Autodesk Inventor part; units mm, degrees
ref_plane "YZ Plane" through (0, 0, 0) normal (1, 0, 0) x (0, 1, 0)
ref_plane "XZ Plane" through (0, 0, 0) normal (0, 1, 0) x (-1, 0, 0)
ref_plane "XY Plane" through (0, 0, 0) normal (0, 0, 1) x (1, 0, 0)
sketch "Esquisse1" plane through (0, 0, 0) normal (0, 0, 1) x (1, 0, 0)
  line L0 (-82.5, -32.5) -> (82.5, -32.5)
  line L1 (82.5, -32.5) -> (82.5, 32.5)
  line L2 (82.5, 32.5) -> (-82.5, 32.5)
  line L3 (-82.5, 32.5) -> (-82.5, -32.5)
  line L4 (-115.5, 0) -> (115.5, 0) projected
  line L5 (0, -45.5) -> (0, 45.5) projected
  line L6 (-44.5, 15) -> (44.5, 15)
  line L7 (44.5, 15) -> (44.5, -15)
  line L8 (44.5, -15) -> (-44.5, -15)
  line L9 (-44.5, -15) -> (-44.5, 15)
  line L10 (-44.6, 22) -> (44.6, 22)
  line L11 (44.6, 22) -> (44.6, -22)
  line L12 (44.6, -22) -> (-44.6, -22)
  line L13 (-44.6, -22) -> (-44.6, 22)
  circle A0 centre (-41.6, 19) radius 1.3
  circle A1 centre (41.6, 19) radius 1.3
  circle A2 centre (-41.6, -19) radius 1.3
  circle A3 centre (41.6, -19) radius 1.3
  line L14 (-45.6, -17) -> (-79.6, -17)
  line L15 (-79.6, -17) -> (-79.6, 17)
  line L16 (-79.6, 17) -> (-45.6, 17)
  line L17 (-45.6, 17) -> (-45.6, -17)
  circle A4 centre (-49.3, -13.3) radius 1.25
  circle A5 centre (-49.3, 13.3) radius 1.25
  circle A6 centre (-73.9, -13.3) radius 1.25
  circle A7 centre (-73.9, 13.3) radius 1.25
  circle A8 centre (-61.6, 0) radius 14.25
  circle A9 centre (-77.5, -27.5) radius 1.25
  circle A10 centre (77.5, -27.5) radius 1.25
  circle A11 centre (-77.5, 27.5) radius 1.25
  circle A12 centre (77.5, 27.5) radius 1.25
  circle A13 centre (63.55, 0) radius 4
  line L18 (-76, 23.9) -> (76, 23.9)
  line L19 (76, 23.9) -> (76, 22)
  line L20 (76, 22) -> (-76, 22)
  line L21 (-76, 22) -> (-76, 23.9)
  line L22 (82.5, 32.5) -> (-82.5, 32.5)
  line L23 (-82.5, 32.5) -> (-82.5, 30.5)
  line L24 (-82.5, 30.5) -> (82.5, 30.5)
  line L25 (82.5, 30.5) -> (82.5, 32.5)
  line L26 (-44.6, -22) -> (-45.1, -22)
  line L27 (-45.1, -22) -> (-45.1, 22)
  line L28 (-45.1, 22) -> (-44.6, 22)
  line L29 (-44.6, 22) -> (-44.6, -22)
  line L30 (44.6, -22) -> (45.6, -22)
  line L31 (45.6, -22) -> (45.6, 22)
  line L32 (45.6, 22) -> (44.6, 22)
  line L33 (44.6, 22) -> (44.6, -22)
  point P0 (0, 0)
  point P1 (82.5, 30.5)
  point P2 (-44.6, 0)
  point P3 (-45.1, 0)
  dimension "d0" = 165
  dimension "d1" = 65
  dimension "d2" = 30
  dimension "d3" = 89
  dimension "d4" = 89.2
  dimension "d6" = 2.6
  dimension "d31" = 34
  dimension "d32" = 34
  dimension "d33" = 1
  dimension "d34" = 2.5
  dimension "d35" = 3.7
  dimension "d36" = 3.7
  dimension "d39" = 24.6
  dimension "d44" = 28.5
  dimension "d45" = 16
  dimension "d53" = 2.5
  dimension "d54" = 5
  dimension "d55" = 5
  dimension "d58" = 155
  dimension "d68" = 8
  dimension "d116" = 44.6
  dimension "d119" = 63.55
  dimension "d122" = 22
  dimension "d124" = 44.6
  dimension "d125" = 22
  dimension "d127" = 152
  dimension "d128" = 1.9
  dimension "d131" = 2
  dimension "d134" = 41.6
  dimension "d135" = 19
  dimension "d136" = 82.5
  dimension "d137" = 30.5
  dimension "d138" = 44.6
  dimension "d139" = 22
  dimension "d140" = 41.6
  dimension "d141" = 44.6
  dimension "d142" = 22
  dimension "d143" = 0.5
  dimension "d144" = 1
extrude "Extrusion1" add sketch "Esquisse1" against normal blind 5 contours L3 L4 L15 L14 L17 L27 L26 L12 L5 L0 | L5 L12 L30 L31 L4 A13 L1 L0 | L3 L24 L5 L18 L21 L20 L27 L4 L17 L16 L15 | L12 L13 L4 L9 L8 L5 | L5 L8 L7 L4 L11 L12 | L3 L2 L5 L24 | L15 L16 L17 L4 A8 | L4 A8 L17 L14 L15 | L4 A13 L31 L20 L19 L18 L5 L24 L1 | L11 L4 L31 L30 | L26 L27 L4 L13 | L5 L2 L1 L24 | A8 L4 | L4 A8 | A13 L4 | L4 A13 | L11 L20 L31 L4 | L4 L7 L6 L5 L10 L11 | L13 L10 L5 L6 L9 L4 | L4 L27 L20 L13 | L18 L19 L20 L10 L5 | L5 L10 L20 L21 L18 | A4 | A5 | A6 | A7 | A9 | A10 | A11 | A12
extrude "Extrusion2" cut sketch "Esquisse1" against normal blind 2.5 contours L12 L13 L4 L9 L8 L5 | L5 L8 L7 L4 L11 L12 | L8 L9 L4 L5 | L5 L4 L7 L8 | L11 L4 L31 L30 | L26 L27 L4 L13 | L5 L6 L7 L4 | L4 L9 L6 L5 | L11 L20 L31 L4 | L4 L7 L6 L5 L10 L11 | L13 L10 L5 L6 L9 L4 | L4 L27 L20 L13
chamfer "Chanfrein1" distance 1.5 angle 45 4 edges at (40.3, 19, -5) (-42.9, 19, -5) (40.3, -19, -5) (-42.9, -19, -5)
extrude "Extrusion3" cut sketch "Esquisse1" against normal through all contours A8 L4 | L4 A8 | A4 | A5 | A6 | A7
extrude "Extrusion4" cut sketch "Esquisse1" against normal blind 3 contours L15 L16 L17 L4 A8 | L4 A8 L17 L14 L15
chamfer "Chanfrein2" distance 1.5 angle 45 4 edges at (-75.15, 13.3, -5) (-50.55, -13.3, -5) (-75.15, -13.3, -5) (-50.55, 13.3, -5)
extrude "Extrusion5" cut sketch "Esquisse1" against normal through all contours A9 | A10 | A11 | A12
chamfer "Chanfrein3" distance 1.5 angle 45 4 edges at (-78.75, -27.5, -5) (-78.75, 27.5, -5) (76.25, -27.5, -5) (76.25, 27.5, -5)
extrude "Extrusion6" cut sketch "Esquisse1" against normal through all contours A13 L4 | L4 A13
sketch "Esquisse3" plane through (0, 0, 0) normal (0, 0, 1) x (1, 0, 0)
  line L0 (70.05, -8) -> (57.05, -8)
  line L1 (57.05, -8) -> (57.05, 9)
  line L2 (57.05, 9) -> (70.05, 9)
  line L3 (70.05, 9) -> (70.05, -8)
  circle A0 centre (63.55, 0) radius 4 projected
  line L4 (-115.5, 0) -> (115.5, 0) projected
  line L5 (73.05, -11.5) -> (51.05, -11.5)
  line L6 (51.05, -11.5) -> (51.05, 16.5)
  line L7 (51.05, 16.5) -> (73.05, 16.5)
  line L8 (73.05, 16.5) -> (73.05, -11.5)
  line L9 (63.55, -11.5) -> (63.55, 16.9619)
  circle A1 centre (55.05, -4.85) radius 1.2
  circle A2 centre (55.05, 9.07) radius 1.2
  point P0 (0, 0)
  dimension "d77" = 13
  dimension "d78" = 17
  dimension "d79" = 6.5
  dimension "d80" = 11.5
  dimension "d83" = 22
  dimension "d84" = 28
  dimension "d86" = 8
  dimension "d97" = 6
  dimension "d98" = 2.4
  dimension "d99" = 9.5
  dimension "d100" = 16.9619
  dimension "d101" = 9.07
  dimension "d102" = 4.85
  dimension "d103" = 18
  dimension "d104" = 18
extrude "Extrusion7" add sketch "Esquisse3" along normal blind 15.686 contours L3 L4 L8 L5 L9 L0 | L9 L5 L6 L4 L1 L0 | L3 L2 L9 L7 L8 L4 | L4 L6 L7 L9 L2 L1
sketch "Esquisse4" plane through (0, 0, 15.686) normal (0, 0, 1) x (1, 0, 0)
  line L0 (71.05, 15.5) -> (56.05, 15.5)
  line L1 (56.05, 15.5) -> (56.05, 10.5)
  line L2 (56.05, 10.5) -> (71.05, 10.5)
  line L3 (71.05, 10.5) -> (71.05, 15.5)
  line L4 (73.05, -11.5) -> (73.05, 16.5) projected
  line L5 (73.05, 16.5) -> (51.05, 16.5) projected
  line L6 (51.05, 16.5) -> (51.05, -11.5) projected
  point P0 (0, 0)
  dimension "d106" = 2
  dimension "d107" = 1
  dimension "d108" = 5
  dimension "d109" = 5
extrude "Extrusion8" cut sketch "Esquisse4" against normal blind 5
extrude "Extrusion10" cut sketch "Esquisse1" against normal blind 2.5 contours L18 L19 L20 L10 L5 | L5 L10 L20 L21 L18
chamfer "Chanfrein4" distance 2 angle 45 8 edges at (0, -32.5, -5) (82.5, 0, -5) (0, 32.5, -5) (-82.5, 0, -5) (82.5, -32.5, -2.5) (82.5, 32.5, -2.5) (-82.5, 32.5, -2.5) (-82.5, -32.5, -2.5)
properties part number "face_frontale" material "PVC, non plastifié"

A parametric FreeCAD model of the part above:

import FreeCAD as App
import Part
import Sketcher

V = App.Vector
Q = App.Units.Quantity


def edges_at(feature, points):
    """Names of the edges that pass closest to the given points."""
    edges = feature.Shape.Edges
    near = lambda p: min(range(len(edges)), key=lambda i: edges[i].distToShape(Part.Vertex(*p))[0])
    return sorted({f"Edge{near(p) + 1}" for p in points})


def add_polygon(sketch, points):
    """Adds a closed chain of lines whose ends are joined by coincident constraints."""
    first, n = sketch.GeometryCount, len(points)
    for a, b in zip(points, points[1:] + points[:1]):
        sketch.addGeometry(Part.LineSegment(App.Vector(*a, 0), App.Vector(*b, 0)), False)
    for i in range(n):
        sketch.addConstraint(Sketcher.Constraint("Coincident", first + i, 2, first + (i + 1) % n, 1))

doc = App.newDocument("Part")
body = doc.addObject("PartDesign::Body", "Body")

# Sketch on XY plane
sketch1 = body.newObject("Sketcher::SketchObject", "Sketch")
sketch1.AttachmentSupport = (doc.getObject("XY_Plane"), [""])
sketch1.MapMode = "FlatFace"
add_polygon(sketch1, [(-82.5, -32.5), (82.5, -32.5), (82.5, 32.5), (-82.5, 32.5)])  # lines 0-3
sketch1.addGeometry(Part.Circle(V(-41.6, -19, 0), V(0, 0, 1), 1.3), False)  # 4
add_polygon(sketch1, [(-44.5, -15), (-44.5, 15), (44.5, 15), (44.5, -15)])  # lines 5-8
sketch1.addGeometry(Part.Circle(V(41.6, -19, 0), V(0, 0, 1), 1.3), False)  # 9
sketch1.addGeometry(Part.Circle(V(-41.6, 19, 0), V(0, 0, 1), 1.3), False)  # 10
sketch1.addGeometry(Part.Circle(V(41.6, 19, 0), V(0, 0, 1), 1.3), False)  # 11
sketch1.addConstraint([
    Sketcher.Constraint("Horizontal", 0),
    Sketcher.Constraint("Vertical", 1),
    Sketcher.Constraint("Horizontal", 2),
    Sketcher.Constraint("Vertical", 3),
    Sketcher.Constraint("Vertical", 5),
    Sketcher.Constraint("Horizontal", 6),
    Sketcher.Constraint("Vertical", 7),
    Sketcher.Constraint("Horizontal", 8),
    Sketcher.Constraint("Equal", 4, 9),
    Sketcher.Constraint("Equal", 9, 10),
    Sketcher.Constraint("Equal", 10, 11),
    Sketcher.Constraint("Symmetric", 9, 3, 10, 3, -1, 1),
    Sketcher.Constraint("Symmetric", 4, 3, 11, 3, -1, 1),
    Sketcher.Constraint("Symmetric", 0, 2, 2, 2, -1, 1),
    Sketcher.Constraint("Symmetric", 5, 2, 7, 2, -1, 1),
    Sketcher.Constraint("Symmetric", 4, 3, 9, 3, -2),
    Sketcher.Constraint("Diameter", 4, Q("2.6 mm")),
    Sketcher.Constraint("DistanceX", 0, 1, 0, 2, Q("165 mm")),
    Sketcher.Constraint("DistanceX", 6, 1, 6, 2, Q("89 mm")),
    Sketcher.Constraint("DistanceY", 1, 1, 1, 2, Q("65 mm")),
    Sketcher.Constraint("DistanceY", 5, 1, 5, 2, Q("30 mm")),
    Sketcher.Constraint("DistanceY", 4, 3, -1, 1, Q("19 mm")),
    Sketcher.Constraint("DistanceX", 4, 3, -1, 1, Q("41.6 mm")),
])
pad1 = body.newObject("PartDesign::Pad", "Pad")
pad1.Profile = sketch1
pad1.Length = 5
pad1.Reversed = True

# Sketch on XY plane
sketch2 = body.newObject("Sketcher::SketchObject", "Sketch001")
sketch2.AttachmentSupport = (doc.getObject("XY_Plane"), [""])
sketch2.MapMode = "FlatFace"
add_polygon(sketch2, [(45.6, -22), (45.6, 22), (-45.1, 22), (-45.1, -22)])  # lines 0-3
sketch2.addGeometry(Part.Circle(V(-41.6, -19, 0), V(0, 0, 1), 1.3), False)  # 4
sketch2.addGeometry(Part.Circle(V(-41.6, 19, 0), V(0, 0, 1), 1.3), False)  # 5
sketch2.addGeometry(Part.Circle(V(41.6, -19, 0), V(0, 0, 1), 1.3), False)  # 6
sketch2.addGeometry(Part.Circle(V(41.6, 19, 0), V(0, 0, 1), 1.3), False)  # 7
sketch2.addConstraint([
    Sketcher.Constraint("Vertical", 0),
    Sketcher.Constraint("Horizontal", 1),
    Sketcher.Constraint("Vertical", 2),
    Sketcher.Constraint("Horizontal", 3),
    Sketcher.Constraint("Equal", 4, 5),
    Sketcher.Constraint("Equal", 5, 6),
    Sketcher.Constraint("Equal", 6, 7),
    Sketcher.Constraint("Symmetric", 5, 3, 6, 3, -1, 1),
    Sketcher.Constraint("Symmetric", 4, 3, 7, 3, -1, 1),
    Sketcher.Constraint("Symmetric", 4, 3, 6, 3, -2),
    Sketcher.Constraint("Diameter", 4, Q("2.6 mm")),
    Sketcher.Constraint("DistanceY", 4, 3, -1, 1, Q("19 mm")),
    Sketcher.Constraint("DistanceY", -1, 1, 0, 2, Q("22 mm")),
    Sketcher.Constraint("DistanceY", 2, 2, -1, 1, Q("22 mm")),
    Sketcher.Constraint("DistanceX", 4, 3, -1, 1, Q("41.6 mm")),
    Sketcher.Constraint("DistanceX", 1, 2, 1, 1, Q("90.7 mm")),
    Sketcher.Constraint("DistanceX", 7, 3, 0, 2, Q("4 mm")),
])
pocket1 = body.newObject("PartDesign::Pocket", "Pocket")
pocket1.Profile = sketch2
pocket1.Length = 2.5
doc.recompute()

chamfer = body.newObject("PartDesign::Chamfer", "Chamfer")
chamfer.Base = (pocket1, edges_at(pocket1, [
    (40.3, 19, -5),
    (-42.9, 19, -5),
    (40.3, -19, -5),
    (-42.9, -19, -5),
]))
chamfer.Size = 1.5

# Sketch on XY plane
sketch3 = body.newObject("Sketcher::SketchObject", "Sketch002")
sketch3.AttachmentSupport = (doc.getObject("XY_Plane"), [""])
sketch3.MapMode = "FlatFace"
sketch3.addGeometry([
    Part.Circle(V(-61.6, 0, 0), V(0, 0, 1), 14.25),  # 0
    Part.Circle(V(-49.3, -13.3, 0), V(0, 0, 1), 1.25),  # 1
    Part.Circle(V(-49.3, 13.3, 0), V(0, 0, 1), 1.25),  # 2
    Part.Circle(V(-73.9, -13.3, 0), V(0, 0, 1), 1.25),  # 3
    Part.Circle(V(-73.9, 13.3, 0), V(0, 0, 1), 1.25),  # 4
], False)
sketch3.addConstraint([
    Sketcher.Constraint("Equal", 1, 2),
    Sketcher.Constraint("Equal", 2, 3),
    Sketcher.Constraint("Equal", 3, 4),
    Sketcher.Constraint("Symmetric", 1, 3, 2, 3, -1),
    Sketcher.Constraint("Symmetric", 3, 3, 4, 3, -1),
    Sketcher.Constraint("PointOnObject", 0, 3, -1),
    Sketcher.Constraint("Horizontal", 1, 3, 3, 3),
    Sketcher.Constraint("Diameter", 0, Q("28.5 mm")),
    Sketcher.Constraint("Diameter", 1, Q("2.5 mm")),
    Sketcher.Constraint("DistanceX", 3, 3, 1, 3, Q("24.6 mm")),
    Sketcher.Constraint("DistanceX", 0, 3, -1, 1, Q("61.6 mm")),
    Sketcher.Constraint("DistanceX", 1, 3, -1, 1, Q("49.3 mm")),
    Sketcher.Constraint("DistanceY", 1, 3, -1, 1, Q("13.3 mm")),
])
pocket2 = body.newObject("PartDesign::Pocket", "Pocket001")
pocket2.Profile = sketch3
pocket2.Type = "ThroughAll"

# Sketch on XY plane
sketch4 = body.newObject("Sketcher::SketchObject", "Sketch003")
sketch4.AttachmentSupport = (doc.getObject("XY_Plane"), [""])
sketch4.MapMode = "FlatFace"
add_polygon(sketch4, [(-79.6, 17), (-79.6, -17), (-45.6, -17), (-45.6, 17)])  # lines 0-3
sketch4.addGeometry(Part.Circle(V(-61.6, 0, 0), V(0, 0, 1), 14.25), False)  # 4
sketch4.addGeometry(Part.Circle(V(-73.9, 13.3, 0), V(0, 0, 1), 1.25), False)  # 5
sketch4.addGeometry(Part.Circle(V(-49.3, 13.3, 0), V(0, 0, 1), 1.25), False)  # 6
sketch4.addGeometry(Part.Circle(V(-73.9, -13.3, 0), V(0, 0, 1), 1.25), False)  # 7
sketch4.addGeometry(Part.Circle(V(-49.3, -13.3, 0), V(0, 0, 1), 1.25), False)  # 8
sketch4.addConstraint([
    Sketcher.Constraint("Vertical", 0),
    Sketcher.Constraint("Horizontal", 1),
    Sketcher.Constraint("Vertical", 2),
    Sketcher.Constraint("Horizontal", 3),
    Sketcher.Constraint("Equal", 5, 6),
    Sketcher.Constraint("Equal", 6, 7),
    Sketcher.Constraint("Equal", 7, 8),
    Sketcher.Constraint("Symmetric", 5, 3, 7, 3, -1),
    Sketcher.Constraint("Symmetric", 6, 3, 8, 3, -1),
    Sketcher.Constraint("PointOnObject", 4, 3, -1),
    Sketcher.Constraint("Horizontal", 5, 3, 6, 3),
    Sketcher.Constraint("Equal", 3, 0),
    Sketcher.Constraint("Diameter", 4, Q("28.5 mm")),
    Sketcher.Constraint("Diameter", 5, Q("2.5 mm")),
    Sketcher.Constraint("DistanceX", 1, 1, 1, 2, Q("34 mm")),
    Sketcher.Constraint("DistanceX", 4, 3, 1, 2, Q("16 mm")),
    Sketcher.Constraint("DistanceX", 5, 3, 6, 3, Q("24.6 mm")),
    Sketcher.Constraint("DistanceY", 0, 2, 7, 3, Q("3.7 mm")),
    Sketcher.Constraint("DistanceX", 8, 3, 1, 2, Q("3.7 mm")),
    Sketcher.Constraint("DistanceY", 6, 3, 2, 2, Q("3.7 mm")),
    Sketcher.Constraint("DistanceX", 4, 3, -1, 1, Q("61.6 mm")),
])
pocket3 = body.newObject("PartDesign::Pocket", "Pocket002")
pocket3.Profile = sketch4
pocket3.Length = 3
doc.recompute()

chamfer2 = body.newObject("PartDesign::Chamfer", "Chamfer001")
chamfer2.Base = (pocket3, edges_at(pocket3, [
    (-75.15, 13.3, -5),
    (-50.55, -13.3, -5),
    (-75.15, -13.3, -5),
    (-50.55, 13.3, -5),
]))
chamfer2.Size = 1.5

# Sketch on XY plane
sketch5 = body.newObject("Sketcher::SketchObject", "Sketch004")
sketch5.AttachmentSupport = (doc.getObject("XY_Plane"), [""])
sketch5.MapMode = "FlatFace"
sketch5.addGeometry([
    Part.Circle(V(-77.5, -27.5, 0), V(0, 0, 1), 1.25),
    Part.Circle(V(77.5, -27.5, 0), V(0, 0, 1), 1.25),
    Part.Circle(V(-77.5, 27.5, 0), V(0, 0, 1), 1.25),
    Part.Circle(V(77.5, 27.5, 0), V(0, 0, 1), 1.25),
], False)
sketch5.addConstraint([
    Sketcher.Constraint("Equal", 0, 1),
    Sketcher.Constraint("Equal", 1, 2),
    Sketcher.Constraint("Equal", 2, 3),
    Sketcher.Constraint("Symmetric", 1, 3, 2, 3, -1, 1),
    Sketcher.Constraint("Symmetric", 0, 3, 3, 3, -1, 1),
    Sketcher.Constraint("Symmetric", 0, 3, 1, 3, -2),
    Sketcher.Constraint("Diameter", 0, Q("2.5 mm")),
    Sketcher.Constraint("DistanceX", 0, 3, 1, 3, Q("155 mm")),
    Sketcher.Constraint("DistanceY", 0, 3, 2, 3, Q("55 mm")),
])
pocket4 = body.newObject("PartDesign::Pocket", "Pocket003")
pocket4.Profile = sketch5
pocket4.Type = "ThroughAll"
doc.recompute()

chamfer3 = body.newObject("PartDesign::Chamfer", "Chamfer002")
chamfer3.Base = (pocket4, edges_at(pocket4, [
    (-78.75, -27.5, -5),
    (-78.75, 27.5, -5),
    (76.25, -27.5, -5),
    (76.25, 27.5, -5),
]))
chamfer3.Size = 1.5

# Sketch on XY plane
sketch6 = body.newObject("Sketcher::SketchObject", "Sketch005")
sketch6.AttachmentSupport = (doc.getObject("XY_Plane"), [""])
sketch6.MapMode = "FlatFace"
sketch6.addGeometry(Part.Circle(V(63.55, 0, 0), V(0, 0, 1), 4), False)
sketch6.addConstraint([
    Sketcher.Constraint("PointOnObject", 0, 3, -1),
    Sketcher.Constraint("Diameter", 0, Q("8 mm")),
    Sketcher.Constraint("DistanceX", -1, 1, 0, 3, Q("63.55 mm")),
])
pocket5 = body.newObject("PartDesign::Pocket", "Pocket004")
pocket5.Profile = sketch6
pocket5.Type = "ThroughAll"

# Sketch on XY plane
sketch7 = body.newObject("Sketcher::SketchObject", "Sketch006")
sketch7.AttachmentSupport = (doc.getObject("XY_Plane"), [""])
sketch7.MapMode = "FlatFace"
add_polygon(sketch7, [(73.05, -11.5), (73.05, 16.5), (51.05, 16.5), (51.05, -11.5)])  # lines 0-3
add_polygon(sketch7, [(70.05, -8), (57.05, -8), (57.05, 9), (70.05, 9)])  # lines 4-7
sketch7.addGeometry(Part.Circle(V(55.05, -4.85, 0), V(0, 0, 1), 1.2), False)  # 8
sketch7.addGeometry(Part.Circle(V(55.05, 9.07, 0), V(0, 0, 1), 1.2), False)  # 9
sketch7.addConstraint([
    Sketcher.Constraint("Vertical", 0),
    Sketcher.Constraint("Horizontal", 1),
    Sketcher.Constraint("Vertical", 2),
    Sketcher.Constraint("Horizontal", 3),
    Sketcher.Constraint("Horizontal", 4),
    Sketcher.Constraint("Vertical", 5),
    Sketcher.Constraint("Horizontal", 6),
    Sketcher.Constraint("Vertical", 7),
    Sketcher.Constraint("Equal", 8, 9),
    Sketcher.Constraint("Vertical", 8, 3, 9, 3),
    Sketcher.Constraint("Diameter", 8, Q("2.4 mm")),
    Sketcher.Constraint("DistanceX", 1, 2, 1, 1, Q("22 mm")),
    Sketcher.Constraint("DistanceX", 4, 2, 4, 1, Q("13 mm")),
    Sketcher.Constraint("DistanceY", 0, 1, 0, 2, Q("28 mm")),
    Sketcher.Constraint("DistanceY", 5, 1, 5, 2, Q("17 mm")),
    Sketcher.Constraint("DistanceY", 4, 2, -1, 1, Q("8 mm")),
    Sketcher.Constraint("DistanceX", 9, 3, 0, 2, Q("18 mm")),
    Sketcher.Constraint("DistanceX", 2, 2, 4, 2, Q("6 mm")),
    Sketcher.Constraint("DistanceY", 2, 2, -1, 1, Q("11.5 mm")),
    Sketcher.Constraint("DistanceY", 8, 3, -1, 1, Q("4.85 mm")),
    Sketcher.Constraint("DistanceY", -1, 1, 9, 3, Q("9.07 mm")),
    Sketcher.Constraint("DistanceX", -1, 1, 8, 3, Q("55.05 mm")),
])
pad2 = body.newObject("PartDesign::Pad", "Pad001")
pad2.Profile = sketch7
pad2.Length = 15.686

# Sketch on XY plane
sketch8 = body.newObject("Sketcher::SketchObject", "Sketch007")
sketch8.AttachmentSupport = (doc.getObject("XY_Plane"), [""])
sketch8.MapMode = "FlatFace"
sketch8.AttachmentOffset = App.Placement(V(0, 0, 15.686), App.Rotation())
add_polygon(sketch8, [(71.05, 10.5), (71.05, 15.5), (56.05, 15.5), (56.05, 10.5)])  # lines 0-3
sketch8.addConstraint([
    Sketcher.Constraint("Vertical", 0),
    Sketcher.Constraint("Horizontal", 1),
    Sketcher.Constraint("Vertical", 2),
    Sketcher.Constraint("Horizontal", 3),
    Sketcher.Constraint("DistanceY", 0, 1, 0, 2, Q("5 mm")),
    Sketcher.Constraint("DistanceX", 1, 2, 1, 1, Q("15 mm")),
    Sketcher.Constraint("DistanceY", -1, 1, 0, 2, Q("15.5 mm")),
    Sketcher.Constraint("DistanceX", -1, 1, 0, 2, Q("71.05 mm")),
])
pocket6 = body.newObject("PartDesign::Pocket", "Pocket005")
pocket6.Profile = sketch8
pocket6.Length = 5

# Sketch on XY plane
sketch9 = body.newObject("Sketcher::SketchObject", "Sketch008")
sketch9.AttachmentSupport = (doc.getObject("XY_Plane"), [""])
sketch9.MapMode = "FlatFace"
add_polygon(sketch9, [(76, 23.9), (-76, 23.9), (-76, 22), (76, 22)])  # lines 0-3
sketch9.addConstraint([
    Sketcher.Constraint("Horizontal", 0),
    Sketcher.Constraint("Vertical", 1),
    Sketcher.Constraint("Horizontal", 2),
    Sketcher.Constraint("Vertical", 3),
    Sketcher.Constraint("DistanceX", 0, 2, 0, 1, Q("152 mm")),
    Sketcher.Constraint("DistanceY", 1, 2, 1, 1, Q("1.9 mm")),
    Sketcher.Constraint("DistanceY", -1, 1, 1, 2, Q("22 mm")),
    Sketcher.Constraint("DistanceX", 0, 2, -1, 1, Q("76 mm")),
])
pocket7 = body.newObject("PartDesign::Pocket", "Pocket006")
pocket7.Profile = sketch9
pocket7.Length = 2.5
doc.recompute()

chamfer4 = body.newObject("PartDesign::Chamfer", "Chamfer003")
chamfer4.Base = (pocket7, edges_at(pocket7, [
    (0, -32.5, -5),
    (82.5, 0, -5),
    (0, 32.5, -5),
    (-82.5, 0, -5),
    (82.5, -32.5, -2.5),
    (82.5, 32.5, -2.5),
    (-82.5, 32.5, -2.5),
    (-82.5, -32.5, -2.5),
]))
chamfer4.Size = 2

doc.recompute()
